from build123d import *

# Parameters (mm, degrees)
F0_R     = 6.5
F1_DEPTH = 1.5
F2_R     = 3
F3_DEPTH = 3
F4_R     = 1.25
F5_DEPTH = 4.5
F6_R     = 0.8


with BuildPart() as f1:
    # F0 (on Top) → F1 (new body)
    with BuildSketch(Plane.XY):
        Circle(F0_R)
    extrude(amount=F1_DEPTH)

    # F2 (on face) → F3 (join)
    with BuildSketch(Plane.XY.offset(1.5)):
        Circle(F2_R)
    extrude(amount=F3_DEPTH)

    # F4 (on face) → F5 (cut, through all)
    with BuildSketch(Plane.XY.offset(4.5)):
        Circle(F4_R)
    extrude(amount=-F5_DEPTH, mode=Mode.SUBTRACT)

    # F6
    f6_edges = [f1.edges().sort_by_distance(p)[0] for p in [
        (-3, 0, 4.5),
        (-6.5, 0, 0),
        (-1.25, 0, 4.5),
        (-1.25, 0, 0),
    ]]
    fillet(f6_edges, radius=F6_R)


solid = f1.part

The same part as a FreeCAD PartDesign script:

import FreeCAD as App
import Part
import Sketcher


def edges_at(feature, points):
    """Names of the edges that pass closest to the given points."""
    edges = feature.Shape.Edges
    near = lambda p: min(range(len(edges)), key=lambda i: edges[i].distToShape(Part.Vertex(*p))[0])
    return sorted({f"Edge{near(p) + 1}" for p in points})

doc = App.newDocument("Part")
body = doc.addObject("PartDesign::Body", "Body")

sketch1 = doc.addObject("Sketcher::SketchObject", "Sketch")
body.addObject(sketch1)
sketch1.AttachmentSupport = (doc.XY_Plane, [""])
sketch1.MapMode = "FlatFace"
sketch1.addGeometry(Part.Circle(App.Vector(0, 0, 0), App.Vector(0, 0, 1), 6.5), False)
sketch1.addConstraint(Sketcher.Constraint("Coincident", 0, 3, -1, 1))
sketch1.addConstraint(Sketcher.Constraint("Diameter", 0, 13.0))
pad1 = doc.addObject("PartDesign::Pad", "Pad")
body.addObject(pad1)
pad1.Profile = sketch1
pad1.Length = 1.5

sketch2 = doc.addObject("Sketcher::SketchObject", "Sketch001")
body.addObject(sketch2)
sketch2.AttachmentSupport = (doc.XY_Plane, [""])
sketch2.MapMode = "FlatFace"
sketch2.AttachmentOffset = App.Placement(App.Vector(0, 0, 1.5), App.Rotation())
sketch2.addGeometry(Part.Circle(App.Vector(0, 0, 0), App.Vector(0, 0, 1), 3), False)
sketch2.addConstraint(Sketcher.Constraint("Coincident", 0, 3, -1, 1))
sketch2.addConstraint(Sketcher.Constraint("Diameter", 0, 6.0))
pad2 = doc.addObject("PartDesign::Pad", "Pad001")
body.addObject(pad2)
pad2.Profile = sketch2
pad2.Length = 3

sketch3 = doc.addObject("Sketcher::SketchObject", "Sketch002")
body.addObject(sketch3)
sketch3.AttachmentSupport = (doc.XY_Plane, [""])
sketch3.MapMode = "FlatFace"
sketch3.AttachmentOffset = App.Placement(App.Vector(0, 0, 4.5), App.Rotation())
sketch3.addGeometry(Part.Circle(App.Vector(0, 0, 0), App.Vector(0, 0, 1), 1.25), False)
sketch3.addConstraint(Sketcher.Constraint("Coincident", 0, 3, -1, 1))
sketch3.addConstraint(Sketcher.Constraint("Diameter", 0, 2.5))
pocket1 = doc.addObject("PartDesign::Pocket", "Pocket")
body.addObject(pocket1)
pocket1.Profile = sketch3
pocket1.Type = "ThroughAll"
doc.recompute()

fillet = doc.addObject("PartDesign::Fillet", "Fillet")
body.addObject(fillet)
fillet.Base = (pocket1, edges_at(pocket1, [
    (-3, 0, 4.5),
    (-6.5, 0, 0),
    (-1.25, 0, 4.5),
    (-1.25, 0, 0),
]))
fillet.Radius = 0.8

doc.recompute()
